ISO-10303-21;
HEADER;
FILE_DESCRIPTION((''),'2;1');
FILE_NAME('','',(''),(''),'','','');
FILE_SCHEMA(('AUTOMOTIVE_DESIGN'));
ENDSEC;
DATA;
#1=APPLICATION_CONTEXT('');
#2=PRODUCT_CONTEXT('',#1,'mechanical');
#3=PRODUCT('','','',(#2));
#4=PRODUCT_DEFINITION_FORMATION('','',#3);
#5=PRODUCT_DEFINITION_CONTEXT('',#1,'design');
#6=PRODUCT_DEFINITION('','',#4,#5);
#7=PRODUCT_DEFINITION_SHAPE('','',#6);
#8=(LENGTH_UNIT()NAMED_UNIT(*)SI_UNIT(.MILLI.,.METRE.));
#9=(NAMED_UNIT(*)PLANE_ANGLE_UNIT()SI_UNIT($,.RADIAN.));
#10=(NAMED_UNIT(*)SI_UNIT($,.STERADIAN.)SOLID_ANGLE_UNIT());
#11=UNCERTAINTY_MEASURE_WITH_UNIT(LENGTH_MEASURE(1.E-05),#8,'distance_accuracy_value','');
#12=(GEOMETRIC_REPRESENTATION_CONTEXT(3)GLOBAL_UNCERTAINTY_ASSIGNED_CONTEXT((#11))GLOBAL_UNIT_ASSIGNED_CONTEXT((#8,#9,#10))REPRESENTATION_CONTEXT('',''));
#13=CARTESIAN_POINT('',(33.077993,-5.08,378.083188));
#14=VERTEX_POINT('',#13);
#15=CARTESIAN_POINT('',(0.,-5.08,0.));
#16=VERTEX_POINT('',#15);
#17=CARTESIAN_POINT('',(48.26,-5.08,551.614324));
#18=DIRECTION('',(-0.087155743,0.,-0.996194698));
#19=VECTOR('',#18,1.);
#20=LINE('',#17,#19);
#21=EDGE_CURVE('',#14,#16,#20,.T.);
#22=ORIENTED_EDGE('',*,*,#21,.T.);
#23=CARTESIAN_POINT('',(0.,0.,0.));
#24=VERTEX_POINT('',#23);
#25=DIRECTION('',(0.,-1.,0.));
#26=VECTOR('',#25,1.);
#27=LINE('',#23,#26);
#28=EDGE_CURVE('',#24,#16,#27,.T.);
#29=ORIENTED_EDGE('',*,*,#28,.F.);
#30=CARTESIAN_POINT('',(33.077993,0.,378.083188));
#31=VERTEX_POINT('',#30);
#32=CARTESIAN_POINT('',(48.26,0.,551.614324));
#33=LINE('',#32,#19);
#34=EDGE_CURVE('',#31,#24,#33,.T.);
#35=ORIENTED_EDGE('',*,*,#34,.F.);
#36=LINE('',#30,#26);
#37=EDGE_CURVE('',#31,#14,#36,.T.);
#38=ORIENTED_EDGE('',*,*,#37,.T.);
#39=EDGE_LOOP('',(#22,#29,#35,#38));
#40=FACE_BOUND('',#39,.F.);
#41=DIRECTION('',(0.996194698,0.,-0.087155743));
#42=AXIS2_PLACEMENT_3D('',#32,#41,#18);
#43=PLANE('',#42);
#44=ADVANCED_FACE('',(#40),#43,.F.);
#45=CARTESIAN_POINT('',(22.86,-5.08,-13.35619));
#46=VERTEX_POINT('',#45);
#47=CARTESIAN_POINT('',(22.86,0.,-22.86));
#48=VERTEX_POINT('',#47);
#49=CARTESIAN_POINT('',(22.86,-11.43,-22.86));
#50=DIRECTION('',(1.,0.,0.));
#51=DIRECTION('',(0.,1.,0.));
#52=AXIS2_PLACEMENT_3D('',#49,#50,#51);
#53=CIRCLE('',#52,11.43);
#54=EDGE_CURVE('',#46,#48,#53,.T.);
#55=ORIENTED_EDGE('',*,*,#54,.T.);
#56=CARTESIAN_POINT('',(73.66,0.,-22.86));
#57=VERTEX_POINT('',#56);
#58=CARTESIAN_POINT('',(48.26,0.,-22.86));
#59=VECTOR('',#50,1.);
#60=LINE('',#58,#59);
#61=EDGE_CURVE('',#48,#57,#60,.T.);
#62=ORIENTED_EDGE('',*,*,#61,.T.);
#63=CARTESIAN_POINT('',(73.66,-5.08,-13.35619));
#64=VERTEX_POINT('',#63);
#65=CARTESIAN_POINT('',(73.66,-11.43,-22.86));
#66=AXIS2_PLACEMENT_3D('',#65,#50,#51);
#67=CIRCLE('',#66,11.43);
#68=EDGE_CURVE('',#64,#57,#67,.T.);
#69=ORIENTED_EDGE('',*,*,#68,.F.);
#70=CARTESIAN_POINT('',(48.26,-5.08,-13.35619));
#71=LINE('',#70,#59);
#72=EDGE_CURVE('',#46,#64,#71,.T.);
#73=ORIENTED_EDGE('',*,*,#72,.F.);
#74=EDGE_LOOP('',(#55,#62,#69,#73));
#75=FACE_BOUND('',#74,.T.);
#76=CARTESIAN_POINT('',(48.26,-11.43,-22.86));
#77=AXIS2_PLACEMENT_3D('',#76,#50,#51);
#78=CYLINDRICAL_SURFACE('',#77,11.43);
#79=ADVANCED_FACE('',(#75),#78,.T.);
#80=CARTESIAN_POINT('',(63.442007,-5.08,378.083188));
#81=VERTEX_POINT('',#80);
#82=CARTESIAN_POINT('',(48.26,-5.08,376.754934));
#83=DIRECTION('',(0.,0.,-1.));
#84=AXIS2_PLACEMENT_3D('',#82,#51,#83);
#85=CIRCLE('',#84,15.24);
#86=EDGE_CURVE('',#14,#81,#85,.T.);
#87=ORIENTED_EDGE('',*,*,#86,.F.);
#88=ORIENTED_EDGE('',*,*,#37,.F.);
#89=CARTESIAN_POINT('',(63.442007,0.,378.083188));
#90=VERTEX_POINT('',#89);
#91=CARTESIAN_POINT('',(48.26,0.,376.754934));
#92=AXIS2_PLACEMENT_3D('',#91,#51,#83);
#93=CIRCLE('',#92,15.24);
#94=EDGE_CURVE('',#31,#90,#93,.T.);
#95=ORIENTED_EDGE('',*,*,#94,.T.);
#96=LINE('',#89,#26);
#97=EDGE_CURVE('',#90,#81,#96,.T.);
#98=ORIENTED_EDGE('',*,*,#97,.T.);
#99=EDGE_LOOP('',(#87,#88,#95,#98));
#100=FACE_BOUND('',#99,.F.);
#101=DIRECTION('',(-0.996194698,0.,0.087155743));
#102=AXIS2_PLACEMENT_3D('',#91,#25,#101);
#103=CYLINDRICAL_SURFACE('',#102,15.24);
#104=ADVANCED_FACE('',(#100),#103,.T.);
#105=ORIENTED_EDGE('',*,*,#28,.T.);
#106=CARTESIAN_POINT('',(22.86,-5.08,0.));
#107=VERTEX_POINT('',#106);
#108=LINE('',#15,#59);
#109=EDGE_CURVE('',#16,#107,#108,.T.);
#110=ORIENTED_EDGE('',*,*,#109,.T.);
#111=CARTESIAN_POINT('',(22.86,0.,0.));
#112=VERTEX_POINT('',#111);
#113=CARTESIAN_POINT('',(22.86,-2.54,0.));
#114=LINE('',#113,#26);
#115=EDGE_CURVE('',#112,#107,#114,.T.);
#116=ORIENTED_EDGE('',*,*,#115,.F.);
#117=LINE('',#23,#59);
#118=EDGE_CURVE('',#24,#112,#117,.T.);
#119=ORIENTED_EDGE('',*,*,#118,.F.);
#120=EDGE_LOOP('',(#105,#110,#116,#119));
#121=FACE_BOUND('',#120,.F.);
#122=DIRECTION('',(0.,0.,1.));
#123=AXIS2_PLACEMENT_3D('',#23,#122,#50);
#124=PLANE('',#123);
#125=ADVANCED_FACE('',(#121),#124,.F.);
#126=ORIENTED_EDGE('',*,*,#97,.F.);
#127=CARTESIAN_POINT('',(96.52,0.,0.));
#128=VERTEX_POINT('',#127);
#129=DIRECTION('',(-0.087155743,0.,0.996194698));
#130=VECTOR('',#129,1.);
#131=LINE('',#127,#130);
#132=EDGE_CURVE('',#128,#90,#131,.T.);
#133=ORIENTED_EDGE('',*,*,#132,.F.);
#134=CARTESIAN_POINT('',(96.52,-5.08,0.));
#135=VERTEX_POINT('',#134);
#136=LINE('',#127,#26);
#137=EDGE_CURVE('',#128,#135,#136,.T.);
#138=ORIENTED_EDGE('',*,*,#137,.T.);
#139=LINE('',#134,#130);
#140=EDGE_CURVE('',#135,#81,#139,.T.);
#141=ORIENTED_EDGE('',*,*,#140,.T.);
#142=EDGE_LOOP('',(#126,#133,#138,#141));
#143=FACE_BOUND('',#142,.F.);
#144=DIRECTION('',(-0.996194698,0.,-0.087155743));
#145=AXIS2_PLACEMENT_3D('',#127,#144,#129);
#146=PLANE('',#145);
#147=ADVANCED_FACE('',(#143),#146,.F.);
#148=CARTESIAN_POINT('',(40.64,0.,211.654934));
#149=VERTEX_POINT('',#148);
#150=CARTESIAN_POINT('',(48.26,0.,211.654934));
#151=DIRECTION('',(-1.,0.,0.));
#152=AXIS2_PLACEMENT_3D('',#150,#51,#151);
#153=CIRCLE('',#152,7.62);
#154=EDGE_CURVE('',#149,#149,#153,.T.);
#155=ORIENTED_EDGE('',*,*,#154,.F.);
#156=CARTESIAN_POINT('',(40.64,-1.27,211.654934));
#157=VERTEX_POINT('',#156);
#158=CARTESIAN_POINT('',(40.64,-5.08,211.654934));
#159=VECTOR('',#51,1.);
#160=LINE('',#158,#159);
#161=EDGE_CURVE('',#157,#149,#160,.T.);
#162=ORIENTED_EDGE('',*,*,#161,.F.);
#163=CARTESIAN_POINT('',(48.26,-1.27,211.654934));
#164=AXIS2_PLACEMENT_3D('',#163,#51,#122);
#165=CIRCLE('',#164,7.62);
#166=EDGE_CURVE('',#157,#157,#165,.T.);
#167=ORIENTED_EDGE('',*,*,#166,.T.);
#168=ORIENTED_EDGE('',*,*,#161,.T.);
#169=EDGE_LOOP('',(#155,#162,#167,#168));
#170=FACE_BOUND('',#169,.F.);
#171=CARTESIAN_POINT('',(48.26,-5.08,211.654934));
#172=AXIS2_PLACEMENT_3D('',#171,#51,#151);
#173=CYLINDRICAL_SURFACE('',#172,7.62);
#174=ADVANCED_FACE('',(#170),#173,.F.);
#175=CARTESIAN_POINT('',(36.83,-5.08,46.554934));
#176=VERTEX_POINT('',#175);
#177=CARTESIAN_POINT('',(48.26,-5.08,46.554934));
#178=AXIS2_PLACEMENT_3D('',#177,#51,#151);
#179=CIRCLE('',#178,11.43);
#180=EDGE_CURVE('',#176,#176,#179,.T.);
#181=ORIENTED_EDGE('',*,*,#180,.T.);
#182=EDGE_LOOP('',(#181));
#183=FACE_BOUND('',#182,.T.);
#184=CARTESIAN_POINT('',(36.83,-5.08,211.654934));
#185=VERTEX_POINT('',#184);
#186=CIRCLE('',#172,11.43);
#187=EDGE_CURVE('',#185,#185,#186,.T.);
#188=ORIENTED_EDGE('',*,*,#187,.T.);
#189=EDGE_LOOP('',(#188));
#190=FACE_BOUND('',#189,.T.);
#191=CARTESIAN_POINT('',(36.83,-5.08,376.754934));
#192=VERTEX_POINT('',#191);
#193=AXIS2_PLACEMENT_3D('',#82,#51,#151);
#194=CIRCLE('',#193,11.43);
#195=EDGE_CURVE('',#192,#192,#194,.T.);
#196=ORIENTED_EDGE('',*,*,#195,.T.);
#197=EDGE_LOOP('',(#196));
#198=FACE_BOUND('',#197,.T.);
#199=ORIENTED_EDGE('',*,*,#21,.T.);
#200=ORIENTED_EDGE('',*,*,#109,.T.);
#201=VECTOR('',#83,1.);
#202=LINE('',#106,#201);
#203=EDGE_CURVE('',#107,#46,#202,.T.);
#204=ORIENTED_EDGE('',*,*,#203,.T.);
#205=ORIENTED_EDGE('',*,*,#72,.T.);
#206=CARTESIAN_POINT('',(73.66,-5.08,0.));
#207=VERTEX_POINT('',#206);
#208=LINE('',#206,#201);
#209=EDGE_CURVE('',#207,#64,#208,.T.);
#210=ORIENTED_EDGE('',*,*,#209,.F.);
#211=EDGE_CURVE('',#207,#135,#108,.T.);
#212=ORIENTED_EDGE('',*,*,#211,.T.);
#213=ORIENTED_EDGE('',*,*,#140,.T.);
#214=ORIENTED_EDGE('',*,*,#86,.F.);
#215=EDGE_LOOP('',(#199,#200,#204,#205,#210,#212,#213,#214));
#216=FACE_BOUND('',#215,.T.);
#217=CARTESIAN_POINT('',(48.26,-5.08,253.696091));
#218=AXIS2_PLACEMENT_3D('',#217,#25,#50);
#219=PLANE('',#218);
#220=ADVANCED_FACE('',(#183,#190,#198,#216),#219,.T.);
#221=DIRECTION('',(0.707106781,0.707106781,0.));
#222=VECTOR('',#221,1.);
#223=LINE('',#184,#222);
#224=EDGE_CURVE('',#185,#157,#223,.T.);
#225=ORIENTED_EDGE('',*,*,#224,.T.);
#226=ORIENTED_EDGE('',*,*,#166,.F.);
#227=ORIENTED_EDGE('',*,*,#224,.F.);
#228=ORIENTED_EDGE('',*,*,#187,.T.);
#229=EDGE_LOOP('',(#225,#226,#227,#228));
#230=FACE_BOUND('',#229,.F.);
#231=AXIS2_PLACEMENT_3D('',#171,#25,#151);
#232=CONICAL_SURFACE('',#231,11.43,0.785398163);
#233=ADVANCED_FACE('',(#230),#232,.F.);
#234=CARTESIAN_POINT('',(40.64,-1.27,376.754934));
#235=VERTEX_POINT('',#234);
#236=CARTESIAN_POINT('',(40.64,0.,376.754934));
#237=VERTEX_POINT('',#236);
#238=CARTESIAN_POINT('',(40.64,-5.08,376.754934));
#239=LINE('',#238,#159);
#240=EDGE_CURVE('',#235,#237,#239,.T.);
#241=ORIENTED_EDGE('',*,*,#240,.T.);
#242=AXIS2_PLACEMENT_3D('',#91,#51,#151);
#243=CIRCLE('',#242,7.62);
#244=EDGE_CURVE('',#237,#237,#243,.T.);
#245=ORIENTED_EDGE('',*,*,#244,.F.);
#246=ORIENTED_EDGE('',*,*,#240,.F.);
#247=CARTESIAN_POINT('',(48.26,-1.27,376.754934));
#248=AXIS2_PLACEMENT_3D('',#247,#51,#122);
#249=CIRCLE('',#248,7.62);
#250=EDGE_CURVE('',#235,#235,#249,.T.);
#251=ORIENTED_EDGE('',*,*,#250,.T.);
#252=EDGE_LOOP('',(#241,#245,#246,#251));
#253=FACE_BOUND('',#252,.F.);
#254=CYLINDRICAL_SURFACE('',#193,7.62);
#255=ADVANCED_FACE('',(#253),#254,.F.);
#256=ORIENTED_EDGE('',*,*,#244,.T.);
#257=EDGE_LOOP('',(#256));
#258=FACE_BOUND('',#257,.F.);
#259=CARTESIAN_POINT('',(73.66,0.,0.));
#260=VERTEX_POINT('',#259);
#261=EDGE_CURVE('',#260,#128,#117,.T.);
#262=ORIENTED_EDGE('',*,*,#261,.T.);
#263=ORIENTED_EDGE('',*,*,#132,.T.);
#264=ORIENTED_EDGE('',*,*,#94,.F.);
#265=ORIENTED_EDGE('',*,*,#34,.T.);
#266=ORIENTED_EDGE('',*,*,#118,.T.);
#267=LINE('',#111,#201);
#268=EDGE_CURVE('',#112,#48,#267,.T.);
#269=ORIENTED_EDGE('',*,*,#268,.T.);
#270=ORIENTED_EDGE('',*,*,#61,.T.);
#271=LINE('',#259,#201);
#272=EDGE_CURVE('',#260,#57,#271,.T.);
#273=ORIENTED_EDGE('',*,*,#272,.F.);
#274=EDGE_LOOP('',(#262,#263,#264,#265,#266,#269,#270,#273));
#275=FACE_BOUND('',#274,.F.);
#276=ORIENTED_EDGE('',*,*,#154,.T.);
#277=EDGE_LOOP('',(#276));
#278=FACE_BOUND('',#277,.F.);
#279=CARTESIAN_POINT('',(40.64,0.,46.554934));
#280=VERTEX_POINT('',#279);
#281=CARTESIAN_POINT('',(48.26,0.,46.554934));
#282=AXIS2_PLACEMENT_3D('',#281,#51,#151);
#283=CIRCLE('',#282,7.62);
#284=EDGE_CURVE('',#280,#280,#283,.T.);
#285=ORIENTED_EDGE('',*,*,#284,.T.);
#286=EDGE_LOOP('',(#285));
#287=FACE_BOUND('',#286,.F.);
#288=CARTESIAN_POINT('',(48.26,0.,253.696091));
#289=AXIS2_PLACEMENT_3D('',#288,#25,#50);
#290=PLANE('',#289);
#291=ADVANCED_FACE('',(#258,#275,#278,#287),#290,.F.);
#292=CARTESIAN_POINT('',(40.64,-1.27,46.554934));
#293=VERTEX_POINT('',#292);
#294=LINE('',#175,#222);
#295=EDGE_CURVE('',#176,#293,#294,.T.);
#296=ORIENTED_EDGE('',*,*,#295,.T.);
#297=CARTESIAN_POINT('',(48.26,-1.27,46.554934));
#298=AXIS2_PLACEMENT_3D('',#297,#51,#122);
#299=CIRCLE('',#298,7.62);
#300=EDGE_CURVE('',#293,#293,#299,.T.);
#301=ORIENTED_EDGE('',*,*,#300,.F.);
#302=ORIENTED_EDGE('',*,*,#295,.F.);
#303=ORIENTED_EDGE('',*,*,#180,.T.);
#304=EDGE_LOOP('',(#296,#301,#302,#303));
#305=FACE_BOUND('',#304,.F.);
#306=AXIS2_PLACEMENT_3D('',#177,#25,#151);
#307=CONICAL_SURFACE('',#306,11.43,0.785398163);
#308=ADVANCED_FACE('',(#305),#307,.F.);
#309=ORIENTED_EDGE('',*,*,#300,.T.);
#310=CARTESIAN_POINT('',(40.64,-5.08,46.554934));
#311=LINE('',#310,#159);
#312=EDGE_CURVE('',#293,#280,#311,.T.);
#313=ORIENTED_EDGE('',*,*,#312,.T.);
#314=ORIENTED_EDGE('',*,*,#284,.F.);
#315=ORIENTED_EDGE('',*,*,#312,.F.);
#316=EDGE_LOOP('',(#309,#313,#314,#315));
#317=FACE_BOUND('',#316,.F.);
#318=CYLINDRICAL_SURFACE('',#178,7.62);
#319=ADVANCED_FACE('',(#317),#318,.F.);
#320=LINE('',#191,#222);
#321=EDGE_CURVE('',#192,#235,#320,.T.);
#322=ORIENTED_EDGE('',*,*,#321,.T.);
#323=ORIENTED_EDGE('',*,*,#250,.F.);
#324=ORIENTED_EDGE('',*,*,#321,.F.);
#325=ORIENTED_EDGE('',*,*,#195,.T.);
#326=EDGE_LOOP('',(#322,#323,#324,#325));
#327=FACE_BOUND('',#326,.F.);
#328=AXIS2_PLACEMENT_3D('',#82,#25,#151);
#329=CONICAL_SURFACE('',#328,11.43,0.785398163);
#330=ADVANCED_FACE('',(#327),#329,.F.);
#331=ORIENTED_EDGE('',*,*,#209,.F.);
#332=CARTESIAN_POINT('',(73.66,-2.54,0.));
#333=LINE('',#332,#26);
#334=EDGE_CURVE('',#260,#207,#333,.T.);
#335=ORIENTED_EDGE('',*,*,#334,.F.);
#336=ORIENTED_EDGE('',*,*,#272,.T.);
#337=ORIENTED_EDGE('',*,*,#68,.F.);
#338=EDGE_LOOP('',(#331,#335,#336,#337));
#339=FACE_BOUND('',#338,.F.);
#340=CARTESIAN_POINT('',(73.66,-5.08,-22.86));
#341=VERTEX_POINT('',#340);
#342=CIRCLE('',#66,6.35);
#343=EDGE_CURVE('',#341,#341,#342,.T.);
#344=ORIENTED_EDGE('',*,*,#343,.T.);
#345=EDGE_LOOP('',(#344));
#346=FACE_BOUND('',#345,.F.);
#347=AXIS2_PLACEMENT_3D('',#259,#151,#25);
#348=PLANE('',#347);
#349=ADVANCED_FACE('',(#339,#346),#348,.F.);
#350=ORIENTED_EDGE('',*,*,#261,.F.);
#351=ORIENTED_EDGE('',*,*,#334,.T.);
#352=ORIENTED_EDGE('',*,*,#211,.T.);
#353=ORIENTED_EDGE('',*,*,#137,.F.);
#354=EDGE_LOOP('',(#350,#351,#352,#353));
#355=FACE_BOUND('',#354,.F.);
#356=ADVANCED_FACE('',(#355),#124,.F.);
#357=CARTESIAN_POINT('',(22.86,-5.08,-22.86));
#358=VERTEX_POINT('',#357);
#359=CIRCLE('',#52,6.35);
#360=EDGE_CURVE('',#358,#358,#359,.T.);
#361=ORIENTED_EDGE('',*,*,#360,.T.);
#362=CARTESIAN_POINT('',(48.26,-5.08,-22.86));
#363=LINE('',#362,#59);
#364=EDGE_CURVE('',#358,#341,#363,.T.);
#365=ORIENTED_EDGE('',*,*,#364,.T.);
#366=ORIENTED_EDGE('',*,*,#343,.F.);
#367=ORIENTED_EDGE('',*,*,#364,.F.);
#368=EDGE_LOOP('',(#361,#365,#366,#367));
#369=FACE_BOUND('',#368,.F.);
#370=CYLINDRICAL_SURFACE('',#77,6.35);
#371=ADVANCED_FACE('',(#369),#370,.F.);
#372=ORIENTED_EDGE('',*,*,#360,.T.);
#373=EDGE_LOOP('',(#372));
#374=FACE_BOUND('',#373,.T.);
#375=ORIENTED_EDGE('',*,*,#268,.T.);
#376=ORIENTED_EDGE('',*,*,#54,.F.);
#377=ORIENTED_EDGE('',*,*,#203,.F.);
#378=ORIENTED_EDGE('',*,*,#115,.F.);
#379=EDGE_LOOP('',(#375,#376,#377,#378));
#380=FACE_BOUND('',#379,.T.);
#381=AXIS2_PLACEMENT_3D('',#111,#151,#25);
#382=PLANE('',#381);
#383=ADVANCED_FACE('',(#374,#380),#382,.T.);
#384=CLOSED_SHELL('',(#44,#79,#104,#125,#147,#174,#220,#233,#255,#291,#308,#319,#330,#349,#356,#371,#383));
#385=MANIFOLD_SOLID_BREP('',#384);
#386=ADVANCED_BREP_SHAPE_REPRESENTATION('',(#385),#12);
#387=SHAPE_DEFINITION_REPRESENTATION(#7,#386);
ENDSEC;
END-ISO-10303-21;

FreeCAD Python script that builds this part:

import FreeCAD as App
import Part
import Sketcher
from FreeCAD import Vector
Q = App.Units.Quantity


def edges_at(feature, points):
    """Names of the edges that pass closest to the given points."""
    edges = feature.Shape.Edges
    near = lambda p: min(range(len(edges)), key=lambda i: edges[i].distToShape(Part.Vertex(*p))[0])
    return sorted({f"Edge{near(p) + 1}" for p in points})


def add_polygon(sketch, points):
    """Adds a closed chain of lines whose ends are joined by coincident constraints."""
    first, n = sketch.GeometryCount, len(points)
    for a, b in zip(points, points[1:] + points[:1]):
        sketch.addGeometry(Part.LineSegment(App.Vector(*a, 0), App.Vector(*b, 0)), False)
    for i in range(n):
        sketch.addConstraint(Sketcher.Constraint("Coincident", first + i, 2, first + (i + 1) % n, 1))

doc = App.newDocument("Part")
body = doc.addObject("PartDesign::Body", "Body")

sketch1 = body.newObject("Sketcher::SketchObject", "Sketch")
sketch1.AttachmentSupport = (doc.getObject("XZ_Plane"), [""])
sketch1.MapMode = "FlatFace"
add_polygon(sketch1, [(48, 552), (0, 0), (97, 0)])
sketch1.addConstraint(Sketcher.Constraint("Horizontal", 1))
sketch1.addConstraint(Sketcher.Constraint("Coincident", 0, 2, -1, 1))
sketch1.addConstraint(Sketcher.Constraint("Equal", 0, 2))
sketch1.addConstraint(Sketcher.Constraint("DistanceX", 1, 1, 1, 2, Q("3.8 in")))
sketch1.addConstraint(Sketcher.Constraint("Angle", 0, Q("-95 deg")))
pad1 = body.newObject("PartDesign::Pad", "Pad")
pad1.Profile = sketch1
pad1.Length = Q("0.2 in")

sketch2 = body.newObject("Sketcher::SketchObject", "Sketch001")
sketch2.AttachmentSupport = (doc.getObject("XY_Plane"), [""])
sketch2.MapMode = "FlatFace"
add_polygon(sketch2, [(23, -5), (23, 0), (74, 0), (74, -5)])
sketch2.addConstraint(Sketcher.Constraint("Vertical", 0))
sketch2.addConstraint(Sketcher.Constraint("Horizontal", 1))
sketch2.addConstraint(Sketcher.Constraint("Vertical", 2))
sketch2.addConstraint(Sketcher.Constraint("Horizontal", 3))
sketch2.addConstraint(Sketcher.Constraint("PointOnObject", 0, 2, -1))
sketch2.addConstraint(Sketcher.Constraint("DistanceX", 1, 1, 1, 2, Q("2 in")))
sketch2.addConstraint(Sketcher.Constraint("DistanceY", 0, 1, 0, 2, Q("0.2 in")))
sketch2.addConstraint(Sketcher.Constraint("DistanceX", -1, 1, 0, 2, Q("0.9 in")))
pad2 = body.newObject("PartDesign::Pad", "Pad001")
pad2.Profile = sketch2
pad2.Length = Q("0.9 in")
pad2.Reversed = True

sketch3 = body.newObject("Sketcher::SketchObject", "Sketch002")
sketch3.AttachmentSupport = (doc.getObject("XY_Plane"), [""])
sketch3.MapMode = "FlatFace"
sketch3.AttachmentOffset = App.Placement(Vector(0, 0, -0.9 * 25.4), App.Rotation())
add_polygon(sketch3, [(23, -5), (23, 0), (74, 0), (74, -5)])
sketch3.addGeometry(Part.LineSegment(Vector(23, -11, 0), Vector(74, -11, 0)), True)
sketch3.addConstraint(Sketcher.Constraint("Vertical", 0))
sketch3.addConstraint(Sketcher.Constraint("Horizontal", 1))
sketch3.addConstraint(Sketcher.Constraint("Vertical", 2))
sketch3.addConstraint(Sketcher.Constraint("Horizontal", 3))
sketch3.addConstraint(Sketcher.Constraint("Horizontal", 4))
sketch3.addConstraint(Sketcher.Constraint("PointOnObject", 0, 2, -1))
sketch3.addConstraint(Sketcher.Constraint("Vertical", 3, 2, 4, 1))
sketch3.addConstraint(Sketcher.Constraint("Vertical", 2, 2, 4, 2))
sketch3.addConstraint(Sketcher.Constraint("DistanceX", 1, 1, 1, 2, Q("2 in")))
sketch3.addConstraint(Sketcher.Constraint("DistanceY", 0, 1, 0, 2, Q("0.2 in")))
sketch3.addConstraint(Sketcher.Constraint("DistanceX", -1, 1, 0, 2, Q("0.9 in")))
sketch3.addConstraint(Sketcher.Constraint("DistanceY", 4, 1, -1, 1, Q("0.45 in")))
revolution = body.newObject("PartDesign::Revolution", "Revolution")
revolution.Profile = sketch3
revolution.ReferenceAxis = (sketch3, ["Axis0"])
revolution.Angle = 360
doc.recompute()

fillet = body.newObject("PartDesign::Fillet", "Fillet")
fillet.Base = (revolution, edges_at(revolution, [(48.26, -2.54, 551.614)]))
fillet.Radius = Q("0.6 in")

sketch4 = body.newObject("Sketcher::SketchObject", "Sketch003")
sketch4.AttachmentSupport = (doc.getObject("XZ_Plane"), [""])
sketch4.MapMode = "FlatFace"
sketch4.AttachmentOffset = App.Placement(Vector(0, 0, 0.2 * 25.4), App.Rotation())
sketch4.addGeometry(Part.Circle(Vector(48, 47, 0), Vector(0, 0, 1), 8), False)
sketch4.addGeometry(Part.Circle(Vector(48, 212, 0), Vector(0, 0, 1), 8), False)
sketch4.addGeometry(Part.Circle(Vector(48, 377, 0), Vector(0, 0, 1), 8), False)
sketch4.addConstraint(Sketcher.Constraint("Equal", 0, 1))
sketch4.addConstraint(Sketcher.Constraint("Equal", 1, 2))
sketch4.addConstraint(Sketcher.Constraint("Vertical", 0, 3, 1, 3))
sketch4.addConstraint(Sketcher.Constraint("Vertical", 1, 3, 2, 3))
sketch4.addConstraint(Sketcher.Constraint("Diameter", 0, Q("0.6 in")))
sketch4.addConstraint(Sketcher.Constraint("DistanceY", 0, 3, 2, 3, Q("13 in")))
sketch4.addConstraint(Sketcher.Constraint("DistanceX", -1, 1, 0, 3, Q("1.9 in")))
sketch4.addConstraint(Sketcher.Constraint("DistanceY", 0, 3, 1, 3, Q("6.5 in")))
sketch4.addConstraint(Sketcher.Constraint("DistanceY", -1, 1, 0, 3, Q("46.554934 mm")))
doc.recompute()
hole = body.newObject("PartDesign::Hole", "Hole")
hole.Profile = sketch4
hole.ThreadType = "None"
hole.Diameter = Q("0.6 in")
hole.DepthType = "ThroughAll"
hole.HoleCutType = "Countersink"
hole.HoleCutDiameter = Q("0.9 in")
hole.HoleCutCountersinkAngle = 90

doc.recompute()
